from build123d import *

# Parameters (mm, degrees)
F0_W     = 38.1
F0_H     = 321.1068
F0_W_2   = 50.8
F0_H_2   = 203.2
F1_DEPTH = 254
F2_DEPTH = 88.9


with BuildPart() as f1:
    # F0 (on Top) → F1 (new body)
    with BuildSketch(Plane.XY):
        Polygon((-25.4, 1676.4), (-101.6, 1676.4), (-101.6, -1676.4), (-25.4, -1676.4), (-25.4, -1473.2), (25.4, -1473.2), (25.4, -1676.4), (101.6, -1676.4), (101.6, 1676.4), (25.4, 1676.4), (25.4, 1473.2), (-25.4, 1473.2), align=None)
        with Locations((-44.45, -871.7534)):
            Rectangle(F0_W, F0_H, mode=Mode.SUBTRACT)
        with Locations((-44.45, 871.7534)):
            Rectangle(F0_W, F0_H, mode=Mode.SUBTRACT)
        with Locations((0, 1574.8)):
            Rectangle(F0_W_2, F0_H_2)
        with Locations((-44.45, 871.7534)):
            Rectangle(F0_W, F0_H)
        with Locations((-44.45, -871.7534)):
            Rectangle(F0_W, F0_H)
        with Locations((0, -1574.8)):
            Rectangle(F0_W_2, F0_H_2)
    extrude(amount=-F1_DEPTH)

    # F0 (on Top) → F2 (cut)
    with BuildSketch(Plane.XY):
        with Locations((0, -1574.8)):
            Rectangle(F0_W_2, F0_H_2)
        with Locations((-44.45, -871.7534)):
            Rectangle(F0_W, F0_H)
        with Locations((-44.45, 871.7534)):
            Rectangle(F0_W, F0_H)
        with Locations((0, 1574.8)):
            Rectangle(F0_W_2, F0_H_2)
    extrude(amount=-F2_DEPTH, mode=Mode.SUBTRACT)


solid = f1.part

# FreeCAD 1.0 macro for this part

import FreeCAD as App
import Part
import Sketcher
Q = App.Units.Quantity


def add_polygon(sketch, points):
    """Adds a closed chain of lines whose ends are joined by coincident constraints."""
    first, n = sketch.GeometryCount, len(points)
    for a, b in zip(points, points[1:] + points[:1]):
        sketch.addGeometry(Part.LineSegment(App.Vector(*a, 0), App.Vector(*b, 0)), False)
    for i in range(n):
        sketch.addConstraint(Sketcher.Constraint("Coincident", first + i, 2, first + (i + 1) % n, 1))

doc = App.newDocument("Part")
body = doc.addObject("PartDesign::Body", "Body")

# Sketch on XY plane
sketch1 = body.newObject("Sketcher::SketchObject", "Sketch")
sketch1.AttachmentSupport = (doc.getObject("XY_Plane"), [""])
sketch1.MapMode = "FlatFace"
add_polygon(sketch1, [(-101.6, 1676.4), (-101.6, -1676.4), (101.6, -1676.4), (101.6, 1676.4)])  # lines 0-3
sketch1.addConstraint(Sketcher.Constraint("Vertical", 0))
sketch1.addConstraint(Sketcher.Constraint("Horizontal", 1))
sketch1.addConstraint(Sketcher.Constraint("Vertical", 2))
sketch1.addConstraint(Sketcher.Constraint("Horizontal", 3))
sketch1.addConstraint(Sketcher.Constraint("Symmetric", 0, 2, 2, 2, -1, 1))
sketch1.addConstraint(Sketcher.Constraint("DistanceX", 1, 1, 1, 2, Q("8 in")))
sketch1.addConstraint(Sketcher.Constraint("DistanceY", 0, 2, 0, 1, Q("132 in")))
pad1 = body.newObject("PartDesign::Pad", "Pad")
pad1.Profile = sketch1
pad1.Length = Q("10 in")
pad1.Reversed = True

# Sketch on XY plane
sketch2 = body.newObject("Sketcher::SketchObject", "Sketch001")
sketch2.AttachmentSupport = (doc.getObject("XY_Plane"), [""])
sketch2.MapMode = "FlatFace"
add_polygon(sketch2, [(-25.4, -1473.2), (-25.4, -1676.4), (25.4, -1676.4), (25.4, -1473.2)])  # lines 0-3
add_polygon(sketch2, [(-63.5, -711.2), (-63.5, -1032.3068), (-25.4, -1032.3068), (-25.4, -711.2)])  # lines 4-7
add_polygon(sketch2, [(-63.5, 1032.3068), (-63.5, 711.2), (-25.4, 711.2), (-25.4, 1032.3068)])  # lines 8-11
add_polygon(sketch2, [(-25.4, 1676.4), (-25.4, 1473.2), (25.4, 1473.2), (25.4, 1676.4)])  # lines 12-15
sketch2.addConstraint(Sketcher.Constraint("Vertical", 0))
sketch2.addConstraint(Sketcher.Constraint("Horizontal", 1))
sketch2.addConstraint(Sketcher.Constraint("Vertical", 2))
sketch2.addConstraint(Sketcher.Constraint("Horizontal", 3))
sketch2.addConstraint(Sketcher.Constraint("Vertical", 4))
sketch2.addConstraint(Sketcher.Constraint("Horizontal", 5))
sketch2.addConstraint(Sketcher.Constraint("Vertical", 6))
sketch2.addConstraint(Sketcher.Constraint("Horizontal", 7))
sketch2.addConstraint(Sketcher.Constraint("Vertical", 8))
sketch2.addConstraint(Sketcher.Constraint("Horizontal", 9))
sketch2.addConstraint(Sketcher.Constraint("Vertical", 10))
sketch2.addConstraint(Sketcher.Constraint("Horizontal", 11))
sketch2.addConstraint(Sketcher.Constraint("Vertical", 12))
sketch2.addConstraint(Sketcher.Constraint("Horizontal", 13))
sketch2.addConstraint(Sketcher.Constraint("Vertical", 14))
sketch2.addConstraint(Sketcher.Constraint("Horizontal", 15))
sketch2.addConstraint(Sketcher.Constraint("Symmetric", 2, 2, 12, 2, -1, 1))
sketch2.addConstraint(Sketcher.Constraint("Symmetric", 0, 2, 14, 2, -1, 1))
sketch2.addConstraint(Sketcher.Constraint("Symmetric", 7, 2, 8, 2, -1))
sketch2.addConstraint(Sketcher.Constraint("Symmetric", 5, 2, 10, 2, -1))
sketch2.addConstraint(Sketcher.Constraint("Vertical", 3, 2, 5, 2))
sketch2.addConstraint(Sketcher.Constraint("Vertical", 10, 2, 12, 2))
sketch2.addConstraint(Sketcher.Constraint("DistanceX", 1, 1, 1, 2, Q("2 in")))
sketch2.addConstraint(Sketcher.Constraint("DistanceY", 0, 2, 0, 1, Q("8 in")))
sketch2.addConstraint(Sketcher.Constraint("DistanceX", 5, 1, 5, 2, Q("1.5 in")))
sketch2.addConstraint(Sketcher.Constraint("DistanceY", 0, 2, -1, 1, Q("66 in")))
sketch2.addConstraint(Sketcher.Constraint("DistanceY", 6, 2, -1, 1, Q("28 in")))
sketch2.addConstraint(Sketcher.Constraint("DistanceY", 4, 2, 4, 1, Q("12.642 in")))
pocket1 = body.newObject("PartDesign::Pocket", "Pocket")
pocket1.Profile = sketch2
pocket1.Length = Q("3.5 in")

doc.recompute()
